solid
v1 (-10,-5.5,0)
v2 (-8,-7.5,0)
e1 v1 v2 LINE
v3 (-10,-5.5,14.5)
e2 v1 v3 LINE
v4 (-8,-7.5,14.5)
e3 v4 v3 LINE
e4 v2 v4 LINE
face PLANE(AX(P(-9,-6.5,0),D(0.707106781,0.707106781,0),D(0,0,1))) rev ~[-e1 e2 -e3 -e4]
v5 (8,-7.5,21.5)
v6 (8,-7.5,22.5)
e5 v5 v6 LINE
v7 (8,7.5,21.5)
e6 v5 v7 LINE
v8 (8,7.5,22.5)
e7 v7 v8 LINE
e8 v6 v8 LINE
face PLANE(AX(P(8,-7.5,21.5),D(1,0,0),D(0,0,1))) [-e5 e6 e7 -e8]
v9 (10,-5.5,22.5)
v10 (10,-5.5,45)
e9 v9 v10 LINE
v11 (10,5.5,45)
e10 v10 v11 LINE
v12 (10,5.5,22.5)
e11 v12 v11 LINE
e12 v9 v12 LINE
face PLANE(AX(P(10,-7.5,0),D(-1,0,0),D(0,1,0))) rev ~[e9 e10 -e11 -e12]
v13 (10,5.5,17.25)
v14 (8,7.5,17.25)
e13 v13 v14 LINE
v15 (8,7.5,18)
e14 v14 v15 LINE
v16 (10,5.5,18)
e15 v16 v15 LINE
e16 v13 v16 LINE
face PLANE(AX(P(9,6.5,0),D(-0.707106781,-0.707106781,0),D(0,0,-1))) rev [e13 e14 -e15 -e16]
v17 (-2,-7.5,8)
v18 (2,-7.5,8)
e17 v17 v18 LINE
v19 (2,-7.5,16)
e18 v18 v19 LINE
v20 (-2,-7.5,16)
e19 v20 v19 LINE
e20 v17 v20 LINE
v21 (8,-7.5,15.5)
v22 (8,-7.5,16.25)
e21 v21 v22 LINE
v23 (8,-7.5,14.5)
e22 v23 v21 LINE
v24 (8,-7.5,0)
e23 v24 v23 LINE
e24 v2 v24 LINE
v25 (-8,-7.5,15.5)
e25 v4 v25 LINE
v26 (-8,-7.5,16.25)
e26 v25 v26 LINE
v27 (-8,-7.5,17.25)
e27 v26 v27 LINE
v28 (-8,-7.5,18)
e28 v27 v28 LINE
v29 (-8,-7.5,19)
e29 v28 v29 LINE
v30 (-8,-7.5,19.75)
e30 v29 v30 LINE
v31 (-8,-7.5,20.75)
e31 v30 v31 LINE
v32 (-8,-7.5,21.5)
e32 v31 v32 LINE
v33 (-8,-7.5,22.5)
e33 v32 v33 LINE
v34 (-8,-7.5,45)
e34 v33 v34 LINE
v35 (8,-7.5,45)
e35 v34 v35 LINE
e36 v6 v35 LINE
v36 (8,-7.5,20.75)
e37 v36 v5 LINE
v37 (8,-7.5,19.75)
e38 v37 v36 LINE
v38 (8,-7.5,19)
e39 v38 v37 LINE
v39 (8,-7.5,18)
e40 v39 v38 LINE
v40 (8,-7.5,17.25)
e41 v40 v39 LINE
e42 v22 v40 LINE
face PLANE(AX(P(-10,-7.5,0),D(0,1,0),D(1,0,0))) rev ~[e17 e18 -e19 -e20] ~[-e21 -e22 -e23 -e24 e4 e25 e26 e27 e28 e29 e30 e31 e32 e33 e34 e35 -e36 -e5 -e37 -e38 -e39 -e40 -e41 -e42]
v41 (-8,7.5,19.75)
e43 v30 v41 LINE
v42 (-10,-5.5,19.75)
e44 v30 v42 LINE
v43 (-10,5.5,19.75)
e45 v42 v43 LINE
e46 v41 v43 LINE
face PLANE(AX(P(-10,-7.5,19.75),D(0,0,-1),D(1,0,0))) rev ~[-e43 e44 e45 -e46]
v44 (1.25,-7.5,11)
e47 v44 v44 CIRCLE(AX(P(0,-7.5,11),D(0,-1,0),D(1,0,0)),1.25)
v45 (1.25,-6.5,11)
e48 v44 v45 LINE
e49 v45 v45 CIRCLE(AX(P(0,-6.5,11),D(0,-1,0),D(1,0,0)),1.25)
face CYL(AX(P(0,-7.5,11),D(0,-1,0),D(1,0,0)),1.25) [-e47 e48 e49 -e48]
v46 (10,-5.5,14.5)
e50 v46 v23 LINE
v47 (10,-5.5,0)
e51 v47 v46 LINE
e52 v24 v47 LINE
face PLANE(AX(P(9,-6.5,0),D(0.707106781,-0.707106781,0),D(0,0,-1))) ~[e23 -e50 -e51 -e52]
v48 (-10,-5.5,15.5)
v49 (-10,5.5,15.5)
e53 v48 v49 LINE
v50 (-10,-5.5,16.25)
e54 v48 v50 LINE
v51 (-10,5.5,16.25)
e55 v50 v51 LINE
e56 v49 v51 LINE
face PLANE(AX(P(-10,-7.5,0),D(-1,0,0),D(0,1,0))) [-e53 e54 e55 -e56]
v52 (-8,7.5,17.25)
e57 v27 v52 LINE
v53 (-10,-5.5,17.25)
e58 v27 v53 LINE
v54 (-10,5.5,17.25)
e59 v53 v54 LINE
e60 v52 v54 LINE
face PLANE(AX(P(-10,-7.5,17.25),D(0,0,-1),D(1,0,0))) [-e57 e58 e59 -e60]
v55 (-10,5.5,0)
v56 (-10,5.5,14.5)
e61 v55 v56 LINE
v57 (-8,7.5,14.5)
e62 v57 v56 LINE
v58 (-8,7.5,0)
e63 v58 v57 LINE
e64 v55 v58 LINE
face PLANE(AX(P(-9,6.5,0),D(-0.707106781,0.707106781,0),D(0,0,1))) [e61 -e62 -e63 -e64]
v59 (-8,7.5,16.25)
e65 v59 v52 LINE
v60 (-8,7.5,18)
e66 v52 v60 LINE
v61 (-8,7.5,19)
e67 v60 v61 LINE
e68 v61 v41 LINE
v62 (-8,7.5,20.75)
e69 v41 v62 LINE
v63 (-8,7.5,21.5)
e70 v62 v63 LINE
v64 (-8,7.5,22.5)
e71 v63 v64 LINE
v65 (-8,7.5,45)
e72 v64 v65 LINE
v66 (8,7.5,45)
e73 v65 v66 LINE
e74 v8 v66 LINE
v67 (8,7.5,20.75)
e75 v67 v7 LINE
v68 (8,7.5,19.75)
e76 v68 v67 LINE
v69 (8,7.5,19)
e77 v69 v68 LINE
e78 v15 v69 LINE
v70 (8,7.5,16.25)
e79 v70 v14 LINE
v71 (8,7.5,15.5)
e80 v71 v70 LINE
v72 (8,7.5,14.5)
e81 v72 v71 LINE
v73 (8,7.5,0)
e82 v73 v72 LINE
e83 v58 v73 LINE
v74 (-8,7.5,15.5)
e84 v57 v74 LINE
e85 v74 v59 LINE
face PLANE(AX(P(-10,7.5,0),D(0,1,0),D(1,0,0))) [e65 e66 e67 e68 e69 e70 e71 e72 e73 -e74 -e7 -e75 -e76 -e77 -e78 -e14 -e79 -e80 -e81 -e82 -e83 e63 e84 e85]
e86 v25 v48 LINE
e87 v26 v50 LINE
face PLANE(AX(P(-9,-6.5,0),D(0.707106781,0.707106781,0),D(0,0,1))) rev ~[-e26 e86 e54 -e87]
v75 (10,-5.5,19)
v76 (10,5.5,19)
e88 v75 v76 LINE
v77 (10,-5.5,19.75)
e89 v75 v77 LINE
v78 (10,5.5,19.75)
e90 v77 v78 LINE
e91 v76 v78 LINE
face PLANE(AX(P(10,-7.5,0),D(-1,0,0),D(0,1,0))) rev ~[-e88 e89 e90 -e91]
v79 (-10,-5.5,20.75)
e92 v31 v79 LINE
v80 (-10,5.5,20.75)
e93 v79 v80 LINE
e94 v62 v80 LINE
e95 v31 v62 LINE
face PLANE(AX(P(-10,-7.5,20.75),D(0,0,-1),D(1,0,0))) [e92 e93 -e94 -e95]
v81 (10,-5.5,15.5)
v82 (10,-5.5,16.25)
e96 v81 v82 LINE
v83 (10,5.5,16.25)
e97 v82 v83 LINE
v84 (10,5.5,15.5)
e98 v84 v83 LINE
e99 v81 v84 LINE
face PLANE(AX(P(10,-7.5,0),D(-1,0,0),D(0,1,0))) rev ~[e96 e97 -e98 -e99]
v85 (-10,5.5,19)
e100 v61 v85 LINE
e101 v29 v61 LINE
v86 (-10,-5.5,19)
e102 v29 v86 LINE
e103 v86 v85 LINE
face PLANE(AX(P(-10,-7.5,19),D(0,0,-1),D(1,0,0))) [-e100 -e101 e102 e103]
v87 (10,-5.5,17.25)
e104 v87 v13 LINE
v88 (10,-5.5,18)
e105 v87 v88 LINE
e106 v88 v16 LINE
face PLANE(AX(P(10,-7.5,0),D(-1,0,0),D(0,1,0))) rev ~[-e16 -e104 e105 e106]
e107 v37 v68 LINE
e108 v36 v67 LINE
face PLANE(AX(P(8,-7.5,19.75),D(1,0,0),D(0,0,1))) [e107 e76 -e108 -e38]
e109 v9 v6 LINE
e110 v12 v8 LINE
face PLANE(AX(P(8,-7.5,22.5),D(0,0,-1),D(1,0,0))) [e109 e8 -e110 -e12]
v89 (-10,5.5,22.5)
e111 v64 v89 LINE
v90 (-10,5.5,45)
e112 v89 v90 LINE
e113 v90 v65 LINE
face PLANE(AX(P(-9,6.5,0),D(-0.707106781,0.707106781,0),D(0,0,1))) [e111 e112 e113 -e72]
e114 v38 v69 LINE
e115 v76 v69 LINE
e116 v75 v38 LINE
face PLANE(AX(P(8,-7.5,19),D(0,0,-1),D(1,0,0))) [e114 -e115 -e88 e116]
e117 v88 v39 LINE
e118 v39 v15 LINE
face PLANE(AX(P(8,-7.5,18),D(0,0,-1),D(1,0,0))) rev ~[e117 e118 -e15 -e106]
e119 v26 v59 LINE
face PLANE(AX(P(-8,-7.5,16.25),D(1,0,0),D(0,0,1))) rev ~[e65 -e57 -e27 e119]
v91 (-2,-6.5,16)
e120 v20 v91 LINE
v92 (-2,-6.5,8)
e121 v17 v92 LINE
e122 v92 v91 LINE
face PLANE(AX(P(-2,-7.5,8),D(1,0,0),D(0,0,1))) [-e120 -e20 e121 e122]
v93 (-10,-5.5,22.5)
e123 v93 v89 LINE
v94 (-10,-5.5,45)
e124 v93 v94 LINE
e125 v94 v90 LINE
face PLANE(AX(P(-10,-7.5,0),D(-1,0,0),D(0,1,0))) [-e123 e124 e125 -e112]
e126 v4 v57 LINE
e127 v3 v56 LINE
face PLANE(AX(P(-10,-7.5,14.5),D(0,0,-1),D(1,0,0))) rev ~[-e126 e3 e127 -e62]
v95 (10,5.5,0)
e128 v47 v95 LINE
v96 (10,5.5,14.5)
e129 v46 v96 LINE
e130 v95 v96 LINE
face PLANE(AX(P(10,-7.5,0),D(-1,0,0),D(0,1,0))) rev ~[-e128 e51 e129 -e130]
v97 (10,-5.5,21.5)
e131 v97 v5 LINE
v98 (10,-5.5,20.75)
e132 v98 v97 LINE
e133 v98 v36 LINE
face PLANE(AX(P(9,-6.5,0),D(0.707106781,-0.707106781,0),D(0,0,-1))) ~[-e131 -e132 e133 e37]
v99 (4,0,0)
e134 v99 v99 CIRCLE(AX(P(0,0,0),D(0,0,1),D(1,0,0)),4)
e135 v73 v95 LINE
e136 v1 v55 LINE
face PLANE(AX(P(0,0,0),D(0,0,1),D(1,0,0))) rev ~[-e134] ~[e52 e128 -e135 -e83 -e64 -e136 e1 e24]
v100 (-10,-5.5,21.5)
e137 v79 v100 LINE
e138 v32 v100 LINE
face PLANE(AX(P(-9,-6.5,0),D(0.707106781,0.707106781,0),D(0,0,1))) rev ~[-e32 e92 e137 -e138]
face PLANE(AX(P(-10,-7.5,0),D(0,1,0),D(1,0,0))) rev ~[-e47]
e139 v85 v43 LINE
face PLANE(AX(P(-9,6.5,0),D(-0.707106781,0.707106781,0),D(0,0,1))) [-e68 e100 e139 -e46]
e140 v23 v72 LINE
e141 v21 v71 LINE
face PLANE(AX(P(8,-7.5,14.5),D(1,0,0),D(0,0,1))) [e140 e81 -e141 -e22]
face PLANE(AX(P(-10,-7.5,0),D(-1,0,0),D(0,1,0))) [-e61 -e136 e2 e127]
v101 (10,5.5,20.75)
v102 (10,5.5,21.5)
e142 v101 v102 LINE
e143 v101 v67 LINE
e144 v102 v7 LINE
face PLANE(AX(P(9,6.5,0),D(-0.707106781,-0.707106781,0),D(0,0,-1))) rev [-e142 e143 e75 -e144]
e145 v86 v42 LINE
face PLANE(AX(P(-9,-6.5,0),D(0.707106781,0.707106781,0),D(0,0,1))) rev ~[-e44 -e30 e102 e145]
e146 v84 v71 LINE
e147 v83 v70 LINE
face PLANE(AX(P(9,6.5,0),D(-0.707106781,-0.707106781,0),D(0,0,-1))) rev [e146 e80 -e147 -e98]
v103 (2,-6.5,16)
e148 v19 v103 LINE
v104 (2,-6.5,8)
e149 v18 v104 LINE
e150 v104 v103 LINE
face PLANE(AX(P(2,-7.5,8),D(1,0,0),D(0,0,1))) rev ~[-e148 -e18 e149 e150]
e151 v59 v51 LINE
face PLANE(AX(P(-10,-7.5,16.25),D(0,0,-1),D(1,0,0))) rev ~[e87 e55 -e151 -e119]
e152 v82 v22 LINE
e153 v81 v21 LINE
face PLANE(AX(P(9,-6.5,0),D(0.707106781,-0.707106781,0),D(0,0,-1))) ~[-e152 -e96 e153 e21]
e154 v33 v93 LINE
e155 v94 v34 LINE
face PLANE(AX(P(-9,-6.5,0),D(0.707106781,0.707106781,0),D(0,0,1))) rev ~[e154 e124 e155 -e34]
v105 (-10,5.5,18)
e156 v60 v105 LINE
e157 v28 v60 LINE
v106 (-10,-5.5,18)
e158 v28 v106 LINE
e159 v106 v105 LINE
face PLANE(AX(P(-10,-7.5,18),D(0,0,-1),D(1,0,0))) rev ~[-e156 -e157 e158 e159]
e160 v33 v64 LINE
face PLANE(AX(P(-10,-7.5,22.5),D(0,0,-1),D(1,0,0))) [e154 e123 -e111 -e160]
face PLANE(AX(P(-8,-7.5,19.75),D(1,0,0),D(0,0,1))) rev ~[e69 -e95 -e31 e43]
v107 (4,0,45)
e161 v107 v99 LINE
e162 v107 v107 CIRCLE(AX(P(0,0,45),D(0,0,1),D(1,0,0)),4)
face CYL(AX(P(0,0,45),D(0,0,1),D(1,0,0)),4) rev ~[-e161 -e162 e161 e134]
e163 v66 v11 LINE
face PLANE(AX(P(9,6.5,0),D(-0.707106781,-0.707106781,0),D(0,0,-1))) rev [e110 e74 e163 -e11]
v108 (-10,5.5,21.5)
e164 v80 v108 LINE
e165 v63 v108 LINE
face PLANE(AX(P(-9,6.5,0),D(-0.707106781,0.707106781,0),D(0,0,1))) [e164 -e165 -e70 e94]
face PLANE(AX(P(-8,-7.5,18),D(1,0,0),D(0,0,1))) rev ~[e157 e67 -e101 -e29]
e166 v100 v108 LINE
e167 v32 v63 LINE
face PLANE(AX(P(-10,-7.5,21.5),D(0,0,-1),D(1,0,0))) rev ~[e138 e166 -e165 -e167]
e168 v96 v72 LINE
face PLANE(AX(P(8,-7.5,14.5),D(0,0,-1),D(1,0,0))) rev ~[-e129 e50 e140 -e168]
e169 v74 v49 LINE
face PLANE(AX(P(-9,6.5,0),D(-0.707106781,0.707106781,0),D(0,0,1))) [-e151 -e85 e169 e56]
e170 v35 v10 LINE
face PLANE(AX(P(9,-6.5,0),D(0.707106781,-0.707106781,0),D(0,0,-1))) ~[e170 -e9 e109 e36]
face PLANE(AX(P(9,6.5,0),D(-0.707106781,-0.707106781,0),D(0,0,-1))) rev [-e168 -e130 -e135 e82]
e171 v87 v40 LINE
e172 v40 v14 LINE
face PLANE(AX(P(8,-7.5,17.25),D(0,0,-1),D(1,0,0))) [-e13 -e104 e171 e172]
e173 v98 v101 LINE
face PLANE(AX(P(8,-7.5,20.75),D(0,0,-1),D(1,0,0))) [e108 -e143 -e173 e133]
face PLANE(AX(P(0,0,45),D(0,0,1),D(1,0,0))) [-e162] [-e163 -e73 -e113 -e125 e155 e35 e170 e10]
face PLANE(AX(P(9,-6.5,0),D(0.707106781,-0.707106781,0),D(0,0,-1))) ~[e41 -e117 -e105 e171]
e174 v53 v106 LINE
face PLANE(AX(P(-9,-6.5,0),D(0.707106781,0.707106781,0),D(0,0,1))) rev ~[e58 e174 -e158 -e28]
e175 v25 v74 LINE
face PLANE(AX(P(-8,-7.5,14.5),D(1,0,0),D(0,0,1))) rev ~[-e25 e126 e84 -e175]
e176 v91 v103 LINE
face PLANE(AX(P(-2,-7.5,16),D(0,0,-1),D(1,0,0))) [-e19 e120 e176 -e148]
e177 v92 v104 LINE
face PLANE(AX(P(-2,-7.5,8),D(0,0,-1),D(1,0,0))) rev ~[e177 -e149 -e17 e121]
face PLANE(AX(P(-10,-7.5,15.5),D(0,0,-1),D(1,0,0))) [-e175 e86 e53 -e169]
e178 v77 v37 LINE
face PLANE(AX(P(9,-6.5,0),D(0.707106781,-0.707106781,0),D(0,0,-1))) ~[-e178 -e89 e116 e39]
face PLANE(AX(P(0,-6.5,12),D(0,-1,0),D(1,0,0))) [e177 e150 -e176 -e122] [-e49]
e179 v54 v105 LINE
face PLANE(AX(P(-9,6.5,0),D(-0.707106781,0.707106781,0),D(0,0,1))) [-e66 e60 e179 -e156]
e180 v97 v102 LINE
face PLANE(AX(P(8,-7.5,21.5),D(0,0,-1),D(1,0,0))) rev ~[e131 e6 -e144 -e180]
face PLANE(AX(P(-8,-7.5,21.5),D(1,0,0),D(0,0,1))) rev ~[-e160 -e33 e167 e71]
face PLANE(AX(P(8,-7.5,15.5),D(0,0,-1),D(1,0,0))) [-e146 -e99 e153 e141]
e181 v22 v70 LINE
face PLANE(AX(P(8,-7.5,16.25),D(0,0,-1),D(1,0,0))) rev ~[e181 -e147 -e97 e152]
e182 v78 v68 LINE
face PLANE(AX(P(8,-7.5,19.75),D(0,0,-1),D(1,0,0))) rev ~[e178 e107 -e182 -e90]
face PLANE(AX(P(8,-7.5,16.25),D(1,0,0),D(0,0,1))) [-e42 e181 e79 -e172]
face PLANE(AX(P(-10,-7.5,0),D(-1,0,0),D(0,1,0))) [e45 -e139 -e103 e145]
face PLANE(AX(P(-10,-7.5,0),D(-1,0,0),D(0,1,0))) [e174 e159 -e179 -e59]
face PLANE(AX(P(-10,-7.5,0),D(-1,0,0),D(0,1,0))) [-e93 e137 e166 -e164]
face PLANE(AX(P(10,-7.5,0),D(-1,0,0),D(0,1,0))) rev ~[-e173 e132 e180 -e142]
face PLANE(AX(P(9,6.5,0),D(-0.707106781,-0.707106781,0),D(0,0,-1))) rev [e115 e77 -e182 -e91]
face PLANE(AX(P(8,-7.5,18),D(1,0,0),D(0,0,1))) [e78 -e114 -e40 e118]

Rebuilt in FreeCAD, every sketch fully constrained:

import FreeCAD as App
import Part
import Sketcher
Q = App.Units.Quantity


def edges_at(feature, points):
    """Names of the edges that pass closest to the given points."""
    edges = feature.Shape.Edges
    near = lambda p: min(range(len(edges)), key=lambda i: edges[i].distToShape(Part.Vertex(*p))[0])
    return sorted({f"Edge{near(p) + 1}" for p in points})


def add_polygon(sketch, points):
    """Adds a closed chain of lines whose ends are joined by coincident constraints."""
    first, n = sketch.GeometryCount, len(points)
    for a, b in zip(points, points[1:] + points[:1]):
        sketch.addGeometry(Part.LineSegment(App.Vector(*a, 0), App.Vector(*b, 0)), False)
    for i in range(n):
        sketch.addConstraint(Sketcher.Constraint("Coincident", first + i, 2, first + (i + 1) % n, 1))

doc = App.newDocument("Part")
body = doc.addObject("PartDesign::Body", "Body")

sketch1 = doc.addObject("Sketcher::SketchObject", "Sketch")
body.addObject(sketch1)
sketch1.AttachmentSupport = (doc.XY_Plane, [""])
sketch1.MapMode = "FlatFace"
add_polygon(sketch1, [(-10, 7.5), (-10, -7.5), (10, -7.5), (10, 7.5)])
sketch1.addConstraint([
    Sketcher.Constraint("Vertical", 0),
    Sketcher.Constraint("Horizontal", 1),
    Sketcher.Constraint("Vertical", 2),
    Sketcher.Constraint("Horizontal", 3),
    Sketcher.Constraint("Symmetric", 0, 2, 2, 2, -1, 1),
    Sketcher.Constraint("DistanceX", 1, 1, 1, 2, Q("20 mm")),
    Sketcher.Constraint("DistanceY", 0, 2, 0, 1, Q("15 mm")),
])
pad1 = doc.addObject("PartDesign::Pad", "Pad")
body.addObject(pad1)
pad1.Profile = sketch1
pad1.Length = 45

sketch2 = doc.addObject("Sketcher::SketchObject", "Sketch001")
body.addObject(sketch2)
sketch2.AttachmentSupport = (doc.XY_Plane, [""])
sketch2.MapMode = "FlatFace"
sketch2.AttachmentOffset = App.Placement(App.Vector(0, 0, 45), App.Rotation())
sketch2.addGeometry(Part.Circle(App.Vector(0, 0, 0), App.Vector(0, 0, 1), 4), False)
sketch2.addConstraint([
    Sketcher.Constraint("Coincident", 0, 3, -1, 1),
    Sketcher.Constraint("Diameter", 0, Q("8 mm")),
])
pocket1 = doc.addObject("PartDesign::Pocket", "Pocket")
body.addObject(pocket1)
pocket1.Profile = sketch2
pocket1.Type = "ThroughAll"
doc.recompute()

chamfer = doc.addObject("PartDesign::Chamfer", "Chamfer")
body.addObject(chamfer)
chamfer.Base = (pocket1, edges_at(pocket1, [
    (10, 7.5, 22.5),
    (10, -7.5, 22.5),
    (-10, -7.5, 22.5),
    (-10, 7.5, 22.5),
]))
chamfer.Size = 2

sketch3 = doc.addObject("Sketcher::SketchObject", "Sketch002")
body.addObject(sketch3)
sketch3.AttachmentSupport = (doc.XZ_Plane, [""])
sketch3.MapMode = "FlatFace"
sketch3.AttachmentOffset = App.Placement(App.Vector(0, 0, 7.5), App.Rotation())
add_polygon(sketch3, [(-10, 15.5), (-10, 14.5), (-8, 14.5), (-8, 15.5)])
add_polygon(sketch3, [(-10, 17.25), (-10, 16.25), (-8, 16.25), (-8, 17.25)])
add_polygon(sketch3, [(-10, 19), (-10, 18), (-8, 18), (-8, 19)])
add_polygon(sketch3, [(-10, 20.75), (-10, 19.75), (-8, 19.75), (-8, 20.75)])
add_polygon(sketch3, [(-10, 22.5), (-10, 21.5), (-8, 21.5), (-8, 22.5)])
add_polygon(sketch3, [(8, 22.5), (8, 21.5), (10, 21.5), (10, 22.5)])
add_polygon(sketch3, [(8, 20.75), (8, 19.75), (10, 19.75), (10, 20.75)])
add_polygon(sketch3, [(8, 19), (8, 18), (10, 18), (10, 19)])
add_polygon(sketch3, [(8, 17.25), (8, 16.25), (10, 16.25), (10, 17.25)])
add_polygon(sketch3, [(8, 15.5), (8, 14.5), (10, 14.5), (10, 15.5)])
sketch3.addConstraint([
    Sketcher.Constraint("Vertical", 0),
    Sketcher.Constraint("Horizontal", 1),
    Sketcher.Constraint("Vertical", 2),
    Sketcher.Constraint("Horizontal", 3),
    Sketcher.Constraint("Vertical", 4),
    Sketcher.Constraint("Horizontal", 5),
    Sketcher.Constraint("Vertical", 6),
    Sketcher.Constraint("Horizontal", 7),
    Sketcher.Constraint("Vertical", 8),
    Sketcher.Constraint("Horizontal", 9),
    Sketcher.Constraint("Vertical", 10),
    Sketcher.Constraint("Horizontal", 11),
    Sketcher.Constraint("Vertical", 12),
    Sketcher.Constraint("Horizontal", 13),
    Sketcher.Constraint("Vertical", 14),
    Sketcher.Constraint("Horizontal", 15),
    Sketcher.Constraint("Vertical", 16),
    Sketcher.Constraint("Horizontal", 17),
    Sketcher.Constraint("Vertical", 18),
    Sketcher.Constraint("Horizontal", 19),
    Sketcher.Constraint("Vertical", 20),
    Sketcher.Constraint("Horizontal", 21),
    Sketcher.Constraint("Vertical", 22),
    Sketcher.Constraint("Horizontal", 23),
    Sketcher.Constraint("Vertical", 24),
    Sketcher.Constraint("Horizontal", 25),
    Sketcher.Constraint("Vertical", 26),
    Sketcher.Constraint("Horizontal", 27),
    Sketcher.Constraint("Vertical", 28),
    Sketcher.Constraint("Horizontal", 29),
    Sketcher.Constraint("Vertical", 30),
    Sketcher.Constraint("Horizontal", 31),
    Sketcher.Constraint("Vertical", 32),
    Sketcher.Constraint("Horizontal", 33),
    Sketcher.Constraint("Vertical", 34),
    Sketcher.Constraint("Horizontal", 35),
    Sketcher.Constraint("Vertical", 36),
    Sketcher.Constraint("Horizontal", 37),
    Sketcher.Constraint("Vertical", 38),
    Sketcher.Constraint("Horizontal", 39),
    Sketcher.Constraint("Symmetric", 17, 2, 20, 2, -2),
    Sketcher.Constraint("Symmetric", 19, 2, 22, 2, -2),
    Sketcher.Constraint("Symmetric", 13, 2, 24, 2, -2),
    Sketcher.Constraint("Symmetric", 15, 2, 26, 2, -2),
    Sketcher.Constraint("Symmetric", 9, 2, 28, 2, -2),
    Sketcher.Constraint("Symmetric", 11, 2, 30, 2, -2),
    Sketcher.Constraint("Symmetric", 5, 2, 32, 2, -2),
    Sketcher.Constraint("Symmetric", 7, 2, 34, 2, -2),
    Sketcher.Constraint("Symmetric", 1, 2, 36, 2, -2),
    Sketcher.Constraint("Symmetric", 3, 2, 38, 2, -2),
    Sketcher.Constraint("Vertical", 3, 2, 4, 2),
    Sketcher.Constraint("Vertical", 2, 2, 5, 2),
    Sketcher.Constraint("Vertical", 7, 2, 8, 2),
    Sketcher.Constraint("Vertical", 6, 2, 9, 2),
    Sketcher.Constraint("Vertical", 11, 2, 12, 2),
    Sketcher.Constraint("Vertical", 10, 2, 13, 2),
    Sketcher.Constraint("Vertical", 15, 2, 16, 2),
    Sketcher.Constraint("Vertical", 14, 2, 17, 2),
    Sketcher.Constraint("Equal", 2, 4),
    Sketcher.Constraint("Equal", 6, 8),
    Sketcher.Constraint("Equal", 10, 12),
    Sketcher.Constraint("Equal", 14, 16),
    Sketcher.Constraint("DistanceX", 1, 1, 1, 2, Q("2 mm")),
    Sketcher.Constraint("DistanceY", 0, 2, 0, 1, Q("1 mm")),
    Sketcher.Constraint("DistanceX", 0, 2, -1, 1, Q("10 mm")),
    Sketcher.Constraint("DistanceY", -1, 1, 8, 2, Q("18 mm")),
    Sketcher.Constraint("DistanceY", -1, 1, 0, 2, Q("14.5 mm")),
    Sketcher.Constraint("DistanceY", -1, 1, 16, 2, Q("21.5 mm")),
    Sketcher.Constraint("DistanceY", 7, 2, 12, 2, Q("2.5 mm")),
    Sketcher.Constraint("DistanceY", -1, 1, 4, 2, Q("16.25 mm")),
])
pocket2 = doc.addObject("PartDesign::Pocket", "Pocket001")
body.addObject(pocket2)
pocket2.Profile = sketch3
pocket2.Type = "ThroughAll"

sketch4 = doc.addObject("Sketcher::SketchObject", "Sketch003")
body.addObject(sketch4)
sketch4.AttachmentSupport = (doc.XZ_Plane, [""])
sketch4.MapMode = "FlatFace"
sketch4.AttachmentOffset = App.Placement(App.Vector(0, 0, 7.5), App.Rotation())
add_polygon(sketch4, [(-2, 16), (-2, 8), (2, 8), (2, 16)])
sketch4.addGeometry(Part.Circle(App.Vector(0, 11, 0), App.Vector(0, 0, 1), 1.25), False)
sketch4.addConstraint([
    Sketcher.Constraint("Vertical", 0),
    Sketcher.Constraint("Horizontal", 1),
    Sketcher.Constraint("Vertical", 2),
    Sketcher.Constraint("Horizontal", 3),
    Sketcher.Constraint("PointOnObject", 4, 3, -2),
    Sketcher.Constraint("Diameter", 4, Q("2.5 mm")),
    Sketcher.Constraint("DistanceX", 1, 1, 1, 2, Q("4 mm")),
    Sketcher.Constraint("DistanceY", 0, 2, 0, 1, Q("8 mm")),
    Sketcher.Constraint("DistanceY", -1, 1, 4, 3, Q("11 mm")),
    Sketcher.Constraint("DistanceX", 0, 2, -1, 1, Q("2 mm")),
    Sketcher.Constraint("DistanceY", -1, 1, 0, 2, Q("8 mm")),
])
pocket3 = doc.addObject("PartDesign::Pocket", "Pocket002")
body.addObject(pocket3)
pocket3.Profile = sketch4
pocket3.Length = 1

doc.recompute()
